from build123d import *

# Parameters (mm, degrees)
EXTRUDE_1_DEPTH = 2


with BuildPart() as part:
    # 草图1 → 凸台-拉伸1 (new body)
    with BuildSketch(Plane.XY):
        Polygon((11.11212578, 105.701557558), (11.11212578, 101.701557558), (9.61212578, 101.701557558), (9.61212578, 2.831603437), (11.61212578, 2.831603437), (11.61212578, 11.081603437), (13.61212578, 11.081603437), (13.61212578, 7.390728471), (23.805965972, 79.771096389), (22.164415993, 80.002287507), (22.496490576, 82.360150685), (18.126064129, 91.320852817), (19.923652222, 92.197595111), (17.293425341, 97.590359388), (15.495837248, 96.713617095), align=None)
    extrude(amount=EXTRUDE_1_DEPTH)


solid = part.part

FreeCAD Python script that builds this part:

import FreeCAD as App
import Part
import Sketcher
from FreeCAD import Vector
Q = App.Units.Quantity

doc = App.newDocument("Part")
params = doc.addObject("Spreadsheet::Sheet", "Params")
for row, (alias, value) in enumerate([
    ("sketch1_width", "2 mm"),
    ("sketch1_height", "4 mm"),
    ("sketch1_length", "2 mm"),
    ("sketch1_length2", "6 mm"),
    ("sketch1_length3", "10 mm"),
    ("pad1_length", "2 mm"),
], start=1):
    params.set(f"A{row}", alias)
    params.set(f"B{row}", "=" + value)
    params.setAlias(f"B{row}", alias)

body = doc.addObject("PartDesign::Body", "Body")

# Sketch on XY plane
sketch1 = doc.addObject("Sketcher::SketchObject", "Sketch")
body.addObject(sketch1)
sketch1.AttachmentSupport = (doc.XY_Plane, [""])
sketch1.MapMode = "FlatFace"
sketch1.addGeometry(Part.LineSegment(Vector(11.1, 105.7, 0), Vector(11.1, 101.7, 0)), False)
sketch1.addGeometry(Part.LineSegment(Vector(11.1, 101.7, 0), Vector(9.6, 101.7, 0)), False)
sketch1.addGeometry(Part.LineSegment(Vector(9.6, 101.7, 0), Vector(9.6, 2.8, 0)), False)
sketch1.addGeometry(Part.LineSegment(Vector(9.6, 2.8, 0), Vector(11.6, 2.8, 0)), False)
sketch1.addGeometry(Part.LineSegment(Vector(11.6, 2.8, 0), Vector(11.6, 11.1, 0)), False)
sketch1.addGeometry(Part.LineSegment(Vector(11.6, 11.1, 0), Vector(13.6, 11.1, 0)), False)
sketch1.addGeometry(Part.LineSegment(Vector(13.6, 11.1, 0), Vector(13.6, 7.4, 0)), False)
sketch1.addGeometry(Part.LineSegment(Vector(13.6, 7.4, 0), Vector(23.8, 79.8, 0)), False)
sketch1.addGeometry(Part.LineSegment(Vector(23.8, 79.8, 0), Vector(22.2, 80, 0)), False)
sketch1.addGeometry(Part.LineSegment(Vector(22.2, 80, 0), Vector(22.5, 82.4, 0)), False)
sketch1.addGeometry(Part.LineSegment(Vector(22.5, 82.4, 0), Vector(18.1, 91.3, 0)), False)
sketch1.addGeometry(Part.LineSegment(Vector(18.1, 91.3, 0), Vector(19.9, 92.2, 0)), False)
sketch1.addGeometry(Part.LineSegment(Vector(19.9, 92.2, 0), Vector(17.3, 97.6, 0)), False)
sketch1.addGeometry(Part.LineSegment(Vector(17.3, 97.6, 0), Vector(15.5, 96.7, 0)), False)
sketch1.addGeometry(Part.LineSegment(Vector(15.5, 96.7, 0), Vector(11.1, 105.7, 0)), False)
sketch1.addConstraint(Sketcher.Constraint("Coincident", 0, 2, 1, 1))
sketch1.addConstraint(Sketcher.Constraint("Coincident", 1, 2, 2, 1))
sketch1.addConstraint(Sketcher.Constraint("Coincident", 2, 2, 3, 1))
sketch1.addConstraint(Sketcher.Constraint("Coincident", 3, 2, 4, 1))
sketch1.addConstraint(Sketcher.Constraint("Coincident", 4, 2, 5, 1))
sketch1.addConstraint(Sketcher.Constraint("Coincident", 5, 2, 6, 1))
sketch1.addConstraint(Sketcher.Constraint("Coincident", 6, 2, 7, 1))
sketch1.addConstraint(Sketcher.Constraint("Coincident", 7, 2, 8, 1))
sketch1.addConstraint(Sketcher.Constraint("Coincident", 8, 2, 9, 1))
sketch1.addConstraint(Sketcher.Constraint("Coincident", 9, 2, 10, 1))
sketch1.addConstraint(Sketcher.Constraint("Coincident", 10, 2, 11, 1))
sketch1.addConstraint(Sketcher.Constraint("Coincident", 11, 2, 12, 1))
sketch1.addConstraint(Sketcher.Constraint("Coincident", 12, 2, 13, 1))
sketch1.addConstraint(Sketcher.Constraint("Coincident", 13, 2, 14, 1))
sketch1.addConstraint(Sketcher.Constraint("Coincident", 14, 2, 0, 1))
sketch1.addConstraint(Sketcher.Constraint("Vertical", 0))
sketch1.addConstraint(Sketcher.Constraint("Horizontal", 1))
sketch1.addConstraint(Sketcher.Constraint("Vertical", 2))
sketch1.addConstraint(Sketcher.Constraint("Horizontal", 3))
sketch1.addConstraint(Sketcher.Constraint("Vertical", 4))
sketch1.addConstraint(Sketcher.Constraint("Horizontal", 5))
sketch1.addConstraint(Sketcher.Constraint("Vertical", 6))
sketch1.addConstraint(Sketcher.Constraint("Perpendicular", 7, 8))
sketch1.addConstraint(Sketcher.Constraint("Perpendicular", 8, 9))
sketch1.addConstraint(Sketcher.Constraint("Perpendicular", 10, 11))
sketch1.addConstraint(Sketcher.Constraint("Perpendicular", 11, 12))
sketch1.addConstraint(Sketcher.Constraint("Perpendicular", 12, 13))
sketch1.addConstraint(Sketcher.Constraint("Perpendicular", 13, 14))
sketch1.addConstraint(Sketcher.Constraint("Equal", 3, 5))
sketch1.addConstraint(Sketcher.Constraint("Equal", 11, 13))
sketch1.addConstraint(Sketcher.Constraint("DistanceX", 3, 1, 3, 2, 2.0))
sketch1.addConstraint(Sketcher.Constraint("DistanceY", 0, 2, 0, 1, 4.0))
sketch1.addConstraint(Sketcher.Constraint("Angle", 10, Q("116 deg")))
sketch1.addConstraint(Sketcher.Constraint("Distance", 11, 2.0))
sketch1.addConstraint(Sketcher.Constraint("Distance", 12, 6.0))
sketch1.addConstraint(Sketcher.Constraint("Distance", 14, 10.0))
sketch1.addConstraint(Sketcher.Constraint("DistanceX", 1, 2, 1, 1, 1.5))
sketch1.addConstraint(Sketcher.Constraint("DistanceY", 4, 1, 4, 2, 8.25))
sketch1.addConstraint(Sketcher.Constraint("DistanceX", 10, 2, 7, 2, 5.679902))
sketch1.addConstraint(Sketcher.Constraint("DistanceY", 7, 2, 11, 2, 12.426499))
sketch1.addConstraint(Sketcher.Constraint("Distance", 7, 73.094679))
sketch1.addConstraint(Sketcher.Constraint("Distance", 8, 1.65775))
sketch1.addConstraint(Sketcher.Constraint("DistanceY", 2, 2, 2, 1, 98.869954))
sketch1.addConstraint(Sketcher.Constraint("DistanceY", -1, 1, 6, 2, 7.390728))
sketch1.addConstraint(Sketcher.Constraint("DistanceX", -1, 1, 9, 2, 22.496491))
sketch1.setExpression("Constraints[30]", "Params.sketch1_width")
sketch1.setExpression("Constraints[31]", "Params.sketch1_height")
sketch1.setExpression("Constraints[33]", "Params.sketch1_length")
sketch1.setExpression("Constraints[34]", "Params.sketch1_length2")
sketch1.setExpression("Constraints[35]", "Params.sketch1_length3")
pad1 = doc.addObject("PartDesign::Pad", "Pad")
body.addObject(pad1)
pad1.Profile = sketch1
pad1.setExpression("Length", "Params.pad1_length")

doc.recompute()
